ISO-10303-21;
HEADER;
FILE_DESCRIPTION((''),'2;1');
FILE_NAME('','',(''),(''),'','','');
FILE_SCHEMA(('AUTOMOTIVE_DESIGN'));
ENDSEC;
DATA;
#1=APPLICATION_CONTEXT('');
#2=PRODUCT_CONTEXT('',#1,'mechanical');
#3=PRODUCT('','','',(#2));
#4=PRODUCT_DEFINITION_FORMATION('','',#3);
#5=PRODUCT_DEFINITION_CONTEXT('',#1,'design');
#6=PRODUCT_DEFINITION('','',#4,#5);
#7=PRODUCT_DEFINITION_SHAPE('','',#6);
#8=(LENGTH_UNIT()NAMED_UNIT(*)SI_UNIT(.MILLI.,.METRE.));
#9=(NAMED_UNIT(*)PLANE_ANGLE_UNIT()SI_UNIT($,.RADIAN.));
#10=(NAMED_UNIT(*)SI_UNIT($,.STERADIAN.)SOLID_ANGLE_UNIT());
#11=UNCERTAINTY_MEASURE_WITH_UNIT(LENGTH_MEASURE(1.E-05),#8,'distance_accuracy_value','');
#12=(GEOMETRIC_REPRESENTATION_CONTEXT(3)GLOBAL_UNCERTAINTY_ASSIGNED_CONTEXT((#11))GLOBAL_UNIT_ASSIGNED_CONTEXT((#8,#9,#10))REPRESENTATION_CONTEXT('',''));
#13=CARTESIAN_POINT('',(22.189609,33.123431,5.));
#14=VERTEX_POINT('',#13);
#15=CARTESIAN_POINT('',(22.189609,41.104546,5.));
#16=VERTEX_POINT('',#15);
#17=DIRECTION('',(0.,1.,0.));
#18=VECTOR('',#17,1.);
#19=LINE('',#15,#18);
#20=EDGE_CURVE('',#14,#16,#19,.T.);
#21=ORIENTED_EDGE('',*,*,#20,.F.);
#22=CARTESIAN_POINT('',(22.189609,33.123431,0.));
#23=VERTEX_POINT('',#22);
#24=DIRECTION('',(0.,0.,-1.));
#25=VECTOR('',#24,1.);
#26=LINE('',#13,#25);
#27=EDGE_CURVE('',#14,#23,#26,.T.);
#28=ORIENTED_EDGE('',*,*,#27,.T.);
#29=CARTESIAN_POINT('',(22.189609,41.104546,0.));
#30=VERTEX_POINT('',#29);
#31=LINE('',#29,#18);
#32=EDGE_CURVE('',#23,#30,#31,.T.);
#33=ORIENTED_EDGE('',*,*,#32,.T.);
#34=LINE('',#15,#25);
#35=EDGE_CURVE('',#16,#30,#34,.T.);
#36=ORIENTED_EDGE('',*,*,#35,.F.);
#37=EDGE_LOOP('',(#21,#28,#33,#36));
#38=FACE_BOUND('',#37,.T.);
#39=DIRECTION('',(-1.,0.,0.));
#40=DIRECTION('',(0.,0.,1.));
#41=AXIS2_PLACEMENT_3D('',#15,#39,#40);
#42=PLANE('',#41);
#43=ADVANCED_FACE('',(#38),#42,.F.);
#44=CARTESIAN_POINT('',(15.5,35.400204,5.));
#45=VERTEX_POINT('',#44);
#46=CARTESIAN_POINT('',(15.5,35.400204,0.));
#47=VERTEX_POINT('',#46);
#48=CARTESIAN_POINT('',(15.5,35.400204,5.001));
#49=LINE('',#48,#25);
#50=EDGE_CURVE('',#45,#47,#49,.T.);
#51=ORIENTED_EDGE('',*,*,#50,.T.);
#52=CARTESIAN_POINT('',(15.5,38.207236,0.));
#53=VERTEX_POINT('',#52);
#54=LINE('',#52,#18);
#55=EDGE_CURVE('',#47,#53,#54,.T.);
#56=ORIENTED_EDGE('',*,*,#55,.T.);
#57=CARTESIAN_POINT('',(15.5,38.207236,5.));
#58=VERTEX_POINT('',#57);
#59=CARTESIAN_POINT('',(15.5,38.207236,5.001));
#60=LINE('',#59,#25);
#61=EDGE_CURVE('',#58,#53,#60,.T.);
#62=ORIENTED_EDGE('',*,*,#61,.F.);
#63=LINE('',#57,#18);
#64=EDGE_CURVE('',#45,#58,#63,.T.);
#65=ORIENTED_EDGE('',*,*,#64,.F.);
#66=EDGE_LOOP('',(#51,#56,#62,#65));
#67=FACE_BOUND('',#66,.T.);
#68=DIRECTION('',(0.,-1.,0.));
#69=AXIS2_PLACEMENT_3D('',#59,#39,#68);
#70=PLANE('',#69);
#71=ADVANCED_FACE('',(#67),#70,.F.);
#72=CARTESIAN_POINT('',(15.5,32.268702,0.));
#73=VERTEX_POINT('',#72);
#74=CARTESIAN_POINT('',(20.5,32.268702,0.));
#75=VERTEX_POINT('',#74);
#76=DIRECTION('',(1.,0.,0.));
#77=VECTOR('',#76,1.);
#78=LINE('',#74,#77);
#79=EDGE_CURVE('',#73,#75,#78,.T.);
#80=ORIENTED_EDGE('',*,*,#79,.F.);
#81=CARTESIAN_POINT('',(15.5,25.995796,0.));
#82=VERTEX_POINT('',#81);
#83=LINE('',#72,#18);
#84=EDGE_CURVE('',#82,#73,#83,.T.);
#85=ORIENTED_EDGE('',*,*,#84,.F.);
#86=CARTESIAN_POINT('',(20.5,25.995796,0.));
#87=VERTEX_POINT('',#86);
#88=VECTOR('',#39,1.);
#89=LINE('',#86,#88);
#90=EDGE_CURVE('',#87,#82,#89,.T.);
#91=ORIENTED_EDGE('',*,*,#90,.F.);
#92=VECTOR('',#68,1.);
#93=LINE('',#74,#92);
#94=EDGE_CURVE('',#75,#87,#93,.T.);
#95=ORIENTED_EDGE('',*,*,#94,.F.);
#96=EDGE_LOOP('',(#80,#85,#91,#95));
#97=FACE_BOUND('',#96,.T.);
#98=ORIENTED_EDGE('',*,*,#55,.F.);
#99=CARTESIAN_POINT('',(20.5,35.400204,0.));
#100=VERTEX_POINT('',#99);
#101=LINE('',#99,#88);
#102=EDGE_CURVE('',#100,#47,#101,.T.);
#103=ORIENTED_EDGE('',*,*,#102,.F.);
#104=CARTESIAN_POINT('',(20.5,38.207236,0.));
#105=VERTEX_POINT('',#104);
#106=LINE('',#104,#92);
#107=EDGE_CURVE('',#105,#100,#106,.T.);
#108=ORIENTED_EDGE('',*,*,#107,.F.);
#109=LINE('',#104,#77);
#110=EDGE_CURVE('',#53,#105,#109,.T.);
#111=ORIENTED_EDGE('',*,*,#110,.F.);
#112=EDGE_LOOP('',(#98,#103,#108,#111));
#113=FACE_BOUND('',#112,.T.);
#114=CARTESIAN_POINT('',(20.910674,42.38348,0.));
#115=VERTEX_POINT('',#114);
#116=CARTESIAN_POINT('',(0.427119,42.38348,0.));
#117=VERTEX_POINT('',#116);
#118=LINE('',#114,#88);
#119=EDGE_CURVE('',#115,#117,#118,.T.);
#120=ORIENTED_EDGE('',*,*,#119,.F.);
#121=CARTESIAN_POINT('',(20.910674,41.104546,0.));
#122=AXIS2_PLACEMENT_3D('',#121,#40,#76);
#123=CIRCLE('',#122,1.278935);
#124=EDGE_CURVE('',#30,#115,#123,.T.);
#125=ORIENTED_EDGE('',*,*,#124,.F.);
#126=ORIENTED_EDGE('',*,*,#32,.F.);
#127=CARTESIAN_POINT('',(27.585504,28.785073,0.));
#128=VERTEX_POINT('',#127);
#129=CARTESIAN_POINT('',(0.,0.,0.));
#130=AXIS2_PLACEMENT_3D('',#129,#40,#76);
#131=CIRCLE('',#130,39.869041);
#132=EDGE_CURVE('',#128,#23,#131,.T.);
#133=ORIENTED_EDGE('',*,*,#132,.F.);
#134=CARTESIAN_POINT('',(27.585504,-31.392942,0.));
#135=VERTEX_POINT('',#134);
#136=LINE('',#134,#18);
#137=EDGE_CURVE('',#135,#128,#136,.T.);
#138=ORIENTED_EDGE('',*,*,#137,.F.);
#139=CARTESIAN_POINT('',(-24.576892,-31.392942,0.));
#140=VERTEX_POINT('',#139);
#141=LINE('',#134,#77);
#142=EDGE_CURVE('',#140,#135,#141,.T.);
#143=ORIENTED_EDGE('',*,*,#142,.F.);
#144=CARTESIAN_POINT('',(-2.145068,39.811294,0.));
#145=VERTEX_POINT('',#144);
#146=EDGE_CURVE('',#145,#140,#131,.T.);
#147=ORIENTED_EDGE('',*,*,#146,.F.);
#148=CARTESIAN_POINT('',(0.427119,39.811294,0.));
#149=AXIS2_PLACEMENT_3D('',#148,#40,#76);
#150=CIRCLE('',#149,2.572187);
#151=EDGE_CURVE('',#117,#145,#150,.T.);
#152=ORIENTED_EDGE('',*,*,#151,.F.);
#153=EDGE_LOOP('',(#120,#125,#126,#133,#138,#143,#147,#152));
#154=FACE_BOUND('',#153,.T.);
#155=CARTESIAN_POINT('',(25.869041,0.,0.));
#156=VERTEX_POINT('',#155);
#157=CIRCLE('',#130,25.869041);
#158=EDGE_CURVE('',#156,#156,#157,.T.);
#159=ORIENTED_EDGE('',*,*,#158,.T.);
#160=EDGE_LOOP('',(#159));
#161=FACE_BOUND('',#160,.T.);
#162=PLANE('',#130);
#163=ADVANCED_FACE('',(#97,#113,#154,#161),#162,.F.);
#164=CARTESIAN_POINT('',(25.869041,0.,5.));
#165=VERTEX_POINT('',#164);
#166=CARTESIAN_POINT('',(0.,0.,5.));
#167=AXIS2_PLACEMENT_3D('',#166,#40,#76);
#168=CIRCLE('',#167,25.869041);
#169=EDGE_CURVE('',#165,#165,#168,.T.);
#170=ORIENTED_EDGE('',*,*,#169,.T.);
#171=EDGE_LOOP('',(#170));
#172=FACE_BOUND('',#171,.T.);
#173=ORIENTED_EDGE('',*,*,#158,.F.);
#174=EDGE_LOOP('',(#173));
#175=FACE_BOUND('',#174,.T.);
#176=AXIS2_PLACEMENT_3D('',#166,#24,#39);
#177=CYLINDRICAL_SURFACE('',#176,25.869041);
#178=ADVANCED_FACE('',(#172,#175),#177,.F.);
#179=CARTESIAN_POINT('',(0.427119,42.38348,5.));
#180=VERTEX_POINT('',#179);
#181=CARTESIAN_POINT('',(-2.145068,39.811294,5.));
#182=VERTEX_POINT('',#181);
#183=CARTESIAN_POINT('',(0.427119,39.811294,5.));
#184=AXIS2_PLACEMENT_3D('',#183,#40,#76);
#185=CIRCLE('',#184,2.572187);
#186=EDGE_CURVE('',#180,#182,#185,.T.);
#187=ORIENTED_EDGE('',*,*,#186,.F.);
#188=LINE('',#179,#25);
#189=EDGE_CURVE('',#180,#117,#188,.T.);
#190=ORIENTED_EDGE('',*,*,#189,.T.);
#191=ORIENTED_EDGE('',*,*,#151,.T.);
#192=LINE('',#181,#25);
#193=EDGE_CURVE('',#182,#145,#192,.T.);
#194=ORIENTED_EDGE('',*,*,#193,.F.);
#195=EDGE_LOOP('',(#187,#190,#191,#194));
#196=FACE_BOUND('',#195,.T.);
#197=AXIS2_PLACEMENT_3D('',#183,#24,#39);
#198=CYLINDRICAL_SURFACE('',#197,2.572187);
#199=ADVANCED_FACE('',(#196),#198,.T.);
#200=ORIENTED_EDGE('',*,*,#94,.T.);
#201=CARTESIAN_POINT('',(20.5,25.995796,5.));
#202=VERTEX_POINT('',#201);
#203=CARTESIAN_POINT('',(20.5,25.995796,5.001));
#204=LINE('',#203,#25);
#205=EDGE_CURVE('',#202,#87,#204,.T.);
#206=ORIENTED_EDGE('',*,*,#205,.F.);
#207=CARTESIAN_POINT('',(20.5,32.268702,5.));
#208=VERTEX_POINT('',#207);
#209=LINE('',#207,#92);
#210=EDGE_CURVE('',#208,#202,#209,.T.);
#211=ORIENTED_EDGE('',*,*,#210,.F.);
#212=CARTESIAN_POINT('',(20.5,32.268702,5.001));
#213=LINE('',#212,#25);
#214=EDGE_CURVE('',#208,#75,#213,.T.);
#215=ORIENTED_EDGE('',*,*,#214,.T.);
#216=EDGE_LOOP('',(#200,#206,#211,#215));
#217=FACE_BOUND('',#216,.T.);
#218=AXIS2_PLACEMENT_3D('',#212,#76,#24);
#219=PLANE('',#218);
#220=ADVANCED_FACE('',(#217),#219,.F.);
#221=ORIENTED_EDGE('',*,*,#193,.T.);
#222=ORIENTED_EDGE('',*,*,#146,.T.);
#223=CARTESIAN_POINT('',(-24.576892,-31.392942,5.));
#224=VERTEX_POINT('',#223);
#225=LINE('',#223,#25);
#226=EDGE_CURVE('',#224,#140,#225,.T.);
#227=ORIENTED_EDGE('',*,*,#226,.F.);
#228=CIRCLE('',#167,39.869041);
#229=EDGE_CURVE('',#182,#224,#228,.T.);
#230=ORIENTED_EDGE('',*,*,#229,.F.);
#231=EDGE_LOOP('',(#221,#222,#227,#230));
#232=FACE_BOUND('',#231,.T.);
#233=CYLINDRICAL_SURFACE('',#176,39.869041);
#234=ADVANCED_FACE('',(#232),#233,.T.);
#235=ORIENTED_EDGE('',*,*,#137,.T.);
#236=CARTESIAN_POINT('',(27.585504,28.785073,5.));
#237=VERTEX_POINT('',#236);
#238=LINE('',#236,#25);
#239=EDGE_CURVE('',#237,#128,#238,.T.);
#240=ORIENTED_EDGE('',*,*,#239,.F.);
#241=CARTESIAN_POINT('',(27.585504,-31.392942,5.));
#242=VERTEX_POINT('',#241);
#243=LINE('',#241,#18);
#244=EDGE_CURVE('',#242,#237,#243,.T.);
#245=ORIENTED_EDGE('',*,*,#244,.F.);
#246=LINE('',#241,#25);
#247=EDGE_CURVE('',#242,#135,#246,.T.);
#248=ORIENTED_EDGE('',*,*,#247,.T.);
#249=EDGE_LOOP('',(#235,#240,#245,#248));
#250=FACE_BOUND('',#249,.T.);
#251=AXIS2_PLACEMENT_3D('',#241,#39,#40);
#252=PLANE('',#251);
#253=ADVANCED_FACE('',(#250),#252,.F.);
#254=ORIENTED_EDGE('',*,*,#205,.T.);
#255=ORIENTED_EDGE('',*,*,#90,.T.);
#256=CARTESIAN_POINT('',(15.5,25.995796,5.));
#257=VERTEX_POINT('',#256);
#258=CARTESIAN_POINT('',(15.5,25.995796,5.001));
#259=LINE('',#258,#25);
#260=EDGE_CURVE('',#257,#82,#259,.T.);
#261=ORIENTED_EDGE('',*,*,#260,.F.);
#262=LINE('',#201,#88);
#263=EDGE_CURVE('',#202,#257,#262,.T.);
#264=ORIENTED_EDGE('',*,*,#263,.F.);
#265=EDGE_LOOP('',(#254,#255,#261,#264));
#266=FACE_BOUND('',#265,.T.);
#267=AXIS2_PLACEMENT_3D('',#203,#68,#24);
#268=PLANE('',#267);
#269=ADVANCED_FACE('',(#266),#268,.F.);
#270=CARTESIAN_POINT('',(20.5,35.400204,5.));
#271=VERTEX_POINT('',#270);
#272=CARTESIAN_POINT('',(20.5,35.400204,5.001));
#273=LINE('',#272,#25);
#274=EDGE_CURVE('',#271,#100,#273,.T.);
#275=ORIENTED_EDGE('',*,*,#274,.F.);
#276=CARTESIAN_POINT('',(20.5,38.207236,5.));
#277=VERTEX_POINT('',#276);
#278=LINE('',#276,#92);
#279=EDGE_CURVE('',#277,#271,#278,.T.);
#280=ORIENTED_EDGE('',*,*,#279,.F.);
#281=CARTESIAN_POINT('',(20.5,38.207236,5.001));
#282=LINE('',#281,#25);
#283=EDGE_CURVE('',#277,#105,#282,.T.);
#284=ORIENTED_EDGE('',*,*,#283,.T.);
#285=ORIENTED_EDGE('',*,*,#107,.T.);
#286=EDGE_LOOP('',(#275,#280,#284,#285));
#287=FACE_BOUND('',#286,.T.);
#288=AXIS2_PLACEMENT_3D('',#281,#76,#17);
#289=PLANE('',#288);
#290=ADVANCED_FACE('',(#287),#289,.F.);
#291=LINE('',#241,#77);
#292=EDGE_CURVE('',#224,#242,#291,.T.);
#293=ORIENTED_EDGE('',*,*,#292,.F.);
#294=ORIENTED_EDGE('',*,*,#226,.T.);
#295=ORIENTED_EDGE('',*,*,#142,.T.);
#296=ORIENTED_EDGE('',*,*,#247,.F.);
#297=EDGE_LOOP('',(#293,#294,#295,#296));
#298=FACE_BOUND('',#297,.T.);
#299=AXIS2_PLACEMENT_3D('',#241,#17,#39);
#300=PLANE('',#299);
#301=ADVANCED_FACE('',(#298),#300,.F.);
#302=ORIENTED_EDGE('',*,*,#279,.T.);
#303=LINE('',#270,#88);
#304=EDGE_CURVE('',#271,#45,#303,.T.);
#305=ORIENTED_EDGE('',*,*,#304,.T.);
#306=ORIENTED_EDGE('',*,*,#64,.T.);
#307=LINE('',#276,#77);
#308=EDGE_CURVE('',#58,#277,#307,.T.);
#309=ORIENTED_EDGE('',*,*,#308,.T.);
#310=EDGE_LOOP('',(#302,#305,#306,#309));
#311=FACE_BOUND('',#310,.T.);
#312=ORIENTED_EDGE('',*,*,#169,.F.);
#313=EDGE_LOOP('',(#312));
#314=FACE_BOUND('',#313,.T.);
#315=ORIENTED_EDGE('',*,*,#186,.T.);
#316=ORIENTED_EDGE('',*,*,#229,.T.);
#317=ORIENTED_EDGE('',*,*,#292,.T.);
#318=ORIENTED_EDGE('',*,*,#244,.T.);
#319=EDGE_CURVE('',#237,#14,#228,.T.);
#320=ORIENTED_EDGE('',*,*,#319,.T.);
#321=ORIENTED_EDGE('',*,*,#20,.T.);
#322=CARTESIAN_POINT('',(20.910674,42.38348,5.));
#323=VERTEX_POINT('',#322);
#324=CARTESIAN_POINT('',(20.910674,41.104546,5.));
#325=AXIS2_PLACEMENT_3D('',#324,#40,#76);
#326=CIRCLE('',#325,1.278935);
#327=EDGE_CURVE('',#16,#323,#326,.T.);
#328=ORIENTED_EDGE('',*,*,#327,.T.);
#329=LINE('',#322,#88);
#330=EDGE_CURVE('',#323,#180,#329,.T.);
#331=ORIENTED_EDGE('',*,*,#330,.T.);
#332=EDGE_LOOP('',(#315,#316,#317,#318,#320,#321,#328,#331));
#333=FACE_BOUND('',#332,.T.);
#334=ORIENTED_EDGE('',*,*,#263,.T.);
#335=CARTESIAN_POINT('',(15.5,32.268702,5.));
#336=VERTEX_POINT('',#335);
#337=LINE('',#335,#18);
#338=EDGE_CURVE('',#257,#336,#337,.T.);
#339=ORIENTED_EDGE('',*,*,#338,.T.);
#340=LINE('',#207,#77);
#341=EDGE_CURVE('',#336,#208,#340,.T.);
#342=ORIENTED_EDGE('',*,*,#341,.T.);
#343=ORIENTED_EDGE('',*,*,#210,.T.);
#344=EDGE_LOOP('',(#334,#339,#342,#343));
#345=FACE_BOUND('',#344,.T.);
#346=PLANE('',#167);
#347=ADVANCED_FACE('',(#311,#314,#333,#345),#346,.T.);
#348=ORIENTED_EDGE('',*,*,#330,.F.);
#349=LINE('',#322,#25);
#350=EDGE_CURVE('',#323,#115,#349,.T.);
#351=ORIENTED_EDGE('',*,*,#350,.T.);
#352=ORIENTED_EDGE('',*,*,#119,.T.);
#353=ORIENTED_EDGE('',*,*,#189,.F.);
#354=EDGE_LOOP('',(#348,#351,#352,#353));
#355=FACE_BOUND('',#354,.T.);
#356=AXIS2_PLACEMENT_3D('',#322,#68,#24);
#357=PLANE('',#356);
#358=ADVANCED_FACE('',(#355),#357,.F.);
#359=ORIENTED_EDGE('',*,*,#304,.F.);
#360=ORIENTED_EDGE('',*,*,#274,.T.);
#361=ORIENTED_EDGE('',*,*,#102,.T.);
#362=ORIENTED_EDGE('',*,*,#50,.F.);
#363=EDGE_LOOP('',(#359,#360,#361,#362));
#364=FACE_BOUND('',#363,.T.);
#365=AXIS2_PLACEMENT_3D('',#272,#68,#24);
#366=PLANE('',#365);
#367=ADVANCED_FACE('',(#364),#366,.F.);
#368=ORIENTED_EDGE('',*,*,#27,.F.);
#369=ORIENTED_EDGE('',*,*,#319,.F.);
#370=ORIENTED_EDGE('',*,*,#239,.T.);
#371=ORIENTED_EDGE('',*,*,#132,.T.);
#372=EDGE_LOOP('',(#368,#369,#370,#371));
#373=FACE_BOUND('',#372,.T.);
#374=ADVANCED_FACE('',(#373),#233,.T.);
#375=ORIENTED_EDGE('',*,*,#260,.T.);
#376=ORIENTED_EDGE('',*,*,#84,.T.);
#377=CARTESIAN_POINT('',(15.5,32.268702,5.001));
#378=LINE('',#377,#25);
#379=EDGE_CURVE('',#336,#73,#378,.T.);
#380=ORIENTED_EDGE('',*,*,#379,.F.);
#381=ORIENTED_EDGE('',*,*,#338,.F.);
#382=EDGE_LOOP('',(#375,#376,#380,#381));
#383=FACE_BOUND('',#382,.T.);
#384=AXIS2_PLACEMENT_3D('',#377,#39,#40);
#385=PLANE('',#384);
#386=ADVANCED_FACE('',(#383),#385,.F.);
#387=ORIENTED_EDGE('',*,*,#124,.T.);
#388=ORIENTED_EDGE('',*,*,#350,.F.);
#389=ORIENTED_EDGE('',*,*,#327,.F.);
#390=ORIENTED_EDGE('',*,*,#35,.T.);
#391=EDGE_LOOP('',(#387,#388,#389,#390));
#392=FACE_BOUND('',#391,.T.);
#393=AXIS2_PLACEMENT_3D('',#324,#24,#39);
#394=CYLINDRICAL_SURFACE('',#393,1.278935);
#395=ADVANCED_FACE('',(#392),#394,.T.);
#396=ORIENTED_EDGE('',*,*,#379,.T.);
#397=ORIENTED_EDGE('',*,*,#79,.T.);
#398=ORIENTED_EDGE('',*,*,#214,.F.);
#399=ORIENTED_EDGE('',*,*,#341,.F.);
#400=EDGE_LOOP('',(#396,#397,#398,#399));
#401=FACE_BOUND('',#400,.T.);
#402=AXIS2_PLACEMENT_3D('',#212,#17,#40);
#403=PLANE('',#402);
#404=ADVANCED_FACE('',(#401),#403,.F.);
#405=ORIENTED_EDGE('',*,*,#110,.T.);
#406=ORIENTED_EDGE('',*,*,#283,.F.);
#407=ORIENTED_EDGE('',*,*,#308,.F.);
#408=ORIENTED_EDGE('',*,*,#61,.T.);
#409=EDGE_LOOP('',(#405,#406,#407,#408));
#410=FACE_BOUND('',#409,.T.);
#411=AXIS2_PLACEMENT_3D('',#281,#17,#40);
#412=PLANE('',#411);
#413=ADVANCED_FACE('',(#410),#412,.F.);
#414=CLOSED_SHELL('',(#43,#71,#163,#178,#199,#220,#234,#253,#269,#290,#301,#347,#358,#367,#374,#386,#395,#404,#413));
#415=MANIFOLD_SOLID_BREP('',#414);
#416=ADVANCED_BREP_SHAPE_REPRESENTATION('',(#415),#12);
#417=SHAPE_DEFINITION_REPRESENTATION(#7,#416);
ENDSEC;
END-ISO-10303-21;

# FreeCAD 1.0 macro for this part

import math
import FreeCAD as App
import Part
import Sketcher
from FreeCAD import Vector


def add_polygon(sketch, points):
    """Adds a closed chain of lines whose ends are joined by coincident constraints."""
    first, n = sketch.GeometryCount, len(points)
    for a, b in zip(points, points[1:] + points[:1]):
        sketch.addGeometry(Part.LineSegment(App.Vector(*a, 0), App.Vector(*b, 0)), False)
    for i in range(n):
        sketch.addConstraint(Sketcher.Constraint("Coincident", first + i, 2, first + (i + 1) % n, 1))

doc = App.newDocument("Part")
body = doc.addObject("PartDesign::Body", "Body")

# Sketch on XY plane
sketch1 = doc.addObject("Sketcher::SketchObject", "Sketch")
body.addObject(sketch1)
sketch1.AttachmentSupport = (doc.XY_Plane, [""])
sketch1.MapMode = "FlatFace"
sketch1.addGeometry(Part.LineSegment(Vector(-24.6, -31.4, 0), Vector(27.6, -31.4, 0)), False)
sketch1.addGeometry(Part.LineSegment(Vector(27.6, -31.4, 0), Vector(27.6, 28.8, 0)), False)
sketch1.addGeometry(Part.ArcOfCircle(Part.Circle(Vector(0, 0, 0), Vector(0, 0, 1), 39.9), math.radians(46.22), math.radians(56.18)), False)
sketch1.addGeometry(Part.LineSegment(Vector(22.2, 33.1, 0), Vector(22.2, 41.1, 0)), False)
sketch1.addGeometry(Part.ArcOfCircle(Part.Circle(Vector(20.9, 41.1, 0), Vector(0, 0, 1), 1.3), math.radians(0), math.radians(90)), False)
sketch1.addGeometry(Part.LineSegment(Vector(20.9, 42.4, 0), Vector(0.4, 42.4, 0)), False)
sketch1.addGeometry(Part.ArcOfCircle(Part.Circle(Vector(0.4, 39.8, 0), Vector(0, 0, 1), 2.6), math.radians(90), math.radians(180)), False)
sketch1.addGeometry(Part.ArcOfCircle(Part.Circle(Vector(0, 0, 0), Vector(0, 0, 1), 39.9), math.radians(93), math.radians(232)), False)
sketch1.addGeometry(Part.Circle(Vector(0, 0, 0), Vector(0, 0, 1), 25.9), False)
sketch1.addConstraint(Sketcher.Constraint("Coincident", 0, 2, 1, 1))
sketch1.addConstraint(Sketcher.Constraint("Coincident", 1, 2, 2, 1))
sketch1.addConstraint(Sketcher.Constraint("Coincident", 2, 2, 3, 1))
sketch1.addConstraint(Sketcher.Constraint("Tangent", 3, 2, 4, 1))
sketch1.addConstraint(Sketcher.Constraint("Tangent", 4, 2, 5, 1))
sketch1.addConstraint(Sketcher.Constraint("Tangent", 5, 2, 6, 1))
sketch1.addConstraint(Sketcher.Constraint("Coincident", 6, 2, 7, 1))
sketch1.addConstraint(Sketcher.Constraint("Coincident", 7, 2, 0, 1))
sketch1.addConstraint(Sketcher.Constraint("Horizontal", 0))
sketch1.addConstraint(Sketcher.Constraint("Vertical", 1))
sketch1.addConstraint(Sketcher.Constraint("Vertical", 3))
sketch1.addConstraint(Sketcher.Constraint("Horizontal", 5))
sketch1.addConstraint(Sketcher.Constraint("Coincident", 2, 3, -1, 1))
sketch1.addConstraint(Sketcher.Constraint("Coincident", 7, 3, -1, 1))
sketch1.addConstraint(Sketcher.Constraint("Coincident", 8, 3, -1, 1))
sketch1.addConstraint(Sketcher.Constraint("Equal", 2, 7))
sketch1.addConstraint(Sketcher.Constraint("Diameter", 8, 51.738082))
sketch1.addConstraint(Sketcher.Constraint("Radius", 2, 39.869041))
sketch1.addConstraint(Sketcher.Constraint("Radius", 4, 1.278935))
sketch1.addConstraint(Sketcher.Constraint("Radius", 6, 2.572187))
sketch1.addConstraint(Sketcher.Constraint("DistanceX", 0, 1, 0, 2, 52.162396))
sketch1.addConstraint(Sketcher.Constraint("DistanceX", 5, 2, 5, 1, 20.483556))
sketch1.addConstraint(Sketcher.Constraint("DistanceY", 1, 1, 1, 2, 60.178014))
sketch1.addConstraint(Sketcher.Constraint("DistanceY", 3, 1, 3, 2, 7.981115))
sketch1.addConstraint(Sketcher.Constraint("DistanceX", -1, 1, 6, 3, 0.427119))
pad1 = doc.addObject("PartDesign::Pad", "Pad")
body.addObject(pad1)
pad1.Profile = sketch1
pad1.Length = 5

# Sketch on XY plane
sketch2 = doc.addObject("Sketcher::SketchObject", "Sketch001")
body.addObject(sketch2)
sketch2.AttachmentSupport = (doc.XY_Plane, [""])
sketch2.MapMode = "FlatFace"
add_polygon(sketch2, [(20.5, 38.2), (20.5, 35.4), (15.5, 35.4), (15.5, 38.2)])  # lines 0-3
sketch2.addConstraint(Sketcher.Constraint("Vertical", 0))
sketch2.addConstraint(Sketcher.Constraint("Horizontal", 1))
sketch2.addConstraint(Sketcher.Constraint("Vertical", 2))
sketch2.addConstraint(Sketcher.Constraint("Horizontal", 3))
sketch2.addConstraint(Sketcher.Constraint("DistanceX", 1, 2, 1, 1, 5.0))
sketch2.addConstraint(Sketcher.Constraint("DistanceX", -1, 1, 0, 2, 20.5))
sketch2.addConstraint(Sketcher.Constraint("DistanceY", 0, 2, 0, 1, 2.807032))
sketch2.addConstraint(Sketcher.Constraint("DistanceY", -1, 1, 0, 2, 35.400204))
pocket1 = doc.addObject("PartDesign::Pocket", "Pocket")
body.addObject(pocket1)
pocket1.Profile = sketch2
pocket1.Type = "UpToFirst"
pocket1.Reversed = True

# Sketch on XY plane
sketch3 = doc.addObject("Sketcher::SketchObject", "Sketch002")
body.addObject(sketch3)
sketch3.AttachmentSupport = (doc.XY_Plane, [""])
sketch3.MapMode = "FlatFace"
add_polygon(sketch3, [(20, 32), (20, 26), (16, 26), (16, 32)])  # lines 0-3
sketch3.addConstraint(Sketcher.Constraint("Vertical", 0))
sketch3.addConstraint(Sketcher.Constraint("Horizontal", 1))
sketch3.addConstraint(Sketcher.Constraint("Vertical", 2))
sketch3.addConstraint(Sketcher.Constraint("Horizontal", 3))
sketch3.addConstraint(Sketcher.Constraint("DistanceX", 1, 2, 1, 1, 5.0))
sketch3.addConstraint(Sketcher.Constraint("DistanceX", -1, 1, 0, 2, 20.5))
sketch3.addConstraint(Sketcher.Constraint("DistanceY", -1, 1, 2, 2, 32.268702))
sketch3.addConstraint(Sketcher.Constraint("DistanceY", 0, 2, 0, 1, 6.272906))
pocket2 = doc.addObject("PartDesign::Pocket", "Pocket001")
body.addObject(pocket2)
pocket2.Profile = sketch3
pocket2.Type = "UpToFirst"
pocket2.Reversed = True

doc.recompute()
